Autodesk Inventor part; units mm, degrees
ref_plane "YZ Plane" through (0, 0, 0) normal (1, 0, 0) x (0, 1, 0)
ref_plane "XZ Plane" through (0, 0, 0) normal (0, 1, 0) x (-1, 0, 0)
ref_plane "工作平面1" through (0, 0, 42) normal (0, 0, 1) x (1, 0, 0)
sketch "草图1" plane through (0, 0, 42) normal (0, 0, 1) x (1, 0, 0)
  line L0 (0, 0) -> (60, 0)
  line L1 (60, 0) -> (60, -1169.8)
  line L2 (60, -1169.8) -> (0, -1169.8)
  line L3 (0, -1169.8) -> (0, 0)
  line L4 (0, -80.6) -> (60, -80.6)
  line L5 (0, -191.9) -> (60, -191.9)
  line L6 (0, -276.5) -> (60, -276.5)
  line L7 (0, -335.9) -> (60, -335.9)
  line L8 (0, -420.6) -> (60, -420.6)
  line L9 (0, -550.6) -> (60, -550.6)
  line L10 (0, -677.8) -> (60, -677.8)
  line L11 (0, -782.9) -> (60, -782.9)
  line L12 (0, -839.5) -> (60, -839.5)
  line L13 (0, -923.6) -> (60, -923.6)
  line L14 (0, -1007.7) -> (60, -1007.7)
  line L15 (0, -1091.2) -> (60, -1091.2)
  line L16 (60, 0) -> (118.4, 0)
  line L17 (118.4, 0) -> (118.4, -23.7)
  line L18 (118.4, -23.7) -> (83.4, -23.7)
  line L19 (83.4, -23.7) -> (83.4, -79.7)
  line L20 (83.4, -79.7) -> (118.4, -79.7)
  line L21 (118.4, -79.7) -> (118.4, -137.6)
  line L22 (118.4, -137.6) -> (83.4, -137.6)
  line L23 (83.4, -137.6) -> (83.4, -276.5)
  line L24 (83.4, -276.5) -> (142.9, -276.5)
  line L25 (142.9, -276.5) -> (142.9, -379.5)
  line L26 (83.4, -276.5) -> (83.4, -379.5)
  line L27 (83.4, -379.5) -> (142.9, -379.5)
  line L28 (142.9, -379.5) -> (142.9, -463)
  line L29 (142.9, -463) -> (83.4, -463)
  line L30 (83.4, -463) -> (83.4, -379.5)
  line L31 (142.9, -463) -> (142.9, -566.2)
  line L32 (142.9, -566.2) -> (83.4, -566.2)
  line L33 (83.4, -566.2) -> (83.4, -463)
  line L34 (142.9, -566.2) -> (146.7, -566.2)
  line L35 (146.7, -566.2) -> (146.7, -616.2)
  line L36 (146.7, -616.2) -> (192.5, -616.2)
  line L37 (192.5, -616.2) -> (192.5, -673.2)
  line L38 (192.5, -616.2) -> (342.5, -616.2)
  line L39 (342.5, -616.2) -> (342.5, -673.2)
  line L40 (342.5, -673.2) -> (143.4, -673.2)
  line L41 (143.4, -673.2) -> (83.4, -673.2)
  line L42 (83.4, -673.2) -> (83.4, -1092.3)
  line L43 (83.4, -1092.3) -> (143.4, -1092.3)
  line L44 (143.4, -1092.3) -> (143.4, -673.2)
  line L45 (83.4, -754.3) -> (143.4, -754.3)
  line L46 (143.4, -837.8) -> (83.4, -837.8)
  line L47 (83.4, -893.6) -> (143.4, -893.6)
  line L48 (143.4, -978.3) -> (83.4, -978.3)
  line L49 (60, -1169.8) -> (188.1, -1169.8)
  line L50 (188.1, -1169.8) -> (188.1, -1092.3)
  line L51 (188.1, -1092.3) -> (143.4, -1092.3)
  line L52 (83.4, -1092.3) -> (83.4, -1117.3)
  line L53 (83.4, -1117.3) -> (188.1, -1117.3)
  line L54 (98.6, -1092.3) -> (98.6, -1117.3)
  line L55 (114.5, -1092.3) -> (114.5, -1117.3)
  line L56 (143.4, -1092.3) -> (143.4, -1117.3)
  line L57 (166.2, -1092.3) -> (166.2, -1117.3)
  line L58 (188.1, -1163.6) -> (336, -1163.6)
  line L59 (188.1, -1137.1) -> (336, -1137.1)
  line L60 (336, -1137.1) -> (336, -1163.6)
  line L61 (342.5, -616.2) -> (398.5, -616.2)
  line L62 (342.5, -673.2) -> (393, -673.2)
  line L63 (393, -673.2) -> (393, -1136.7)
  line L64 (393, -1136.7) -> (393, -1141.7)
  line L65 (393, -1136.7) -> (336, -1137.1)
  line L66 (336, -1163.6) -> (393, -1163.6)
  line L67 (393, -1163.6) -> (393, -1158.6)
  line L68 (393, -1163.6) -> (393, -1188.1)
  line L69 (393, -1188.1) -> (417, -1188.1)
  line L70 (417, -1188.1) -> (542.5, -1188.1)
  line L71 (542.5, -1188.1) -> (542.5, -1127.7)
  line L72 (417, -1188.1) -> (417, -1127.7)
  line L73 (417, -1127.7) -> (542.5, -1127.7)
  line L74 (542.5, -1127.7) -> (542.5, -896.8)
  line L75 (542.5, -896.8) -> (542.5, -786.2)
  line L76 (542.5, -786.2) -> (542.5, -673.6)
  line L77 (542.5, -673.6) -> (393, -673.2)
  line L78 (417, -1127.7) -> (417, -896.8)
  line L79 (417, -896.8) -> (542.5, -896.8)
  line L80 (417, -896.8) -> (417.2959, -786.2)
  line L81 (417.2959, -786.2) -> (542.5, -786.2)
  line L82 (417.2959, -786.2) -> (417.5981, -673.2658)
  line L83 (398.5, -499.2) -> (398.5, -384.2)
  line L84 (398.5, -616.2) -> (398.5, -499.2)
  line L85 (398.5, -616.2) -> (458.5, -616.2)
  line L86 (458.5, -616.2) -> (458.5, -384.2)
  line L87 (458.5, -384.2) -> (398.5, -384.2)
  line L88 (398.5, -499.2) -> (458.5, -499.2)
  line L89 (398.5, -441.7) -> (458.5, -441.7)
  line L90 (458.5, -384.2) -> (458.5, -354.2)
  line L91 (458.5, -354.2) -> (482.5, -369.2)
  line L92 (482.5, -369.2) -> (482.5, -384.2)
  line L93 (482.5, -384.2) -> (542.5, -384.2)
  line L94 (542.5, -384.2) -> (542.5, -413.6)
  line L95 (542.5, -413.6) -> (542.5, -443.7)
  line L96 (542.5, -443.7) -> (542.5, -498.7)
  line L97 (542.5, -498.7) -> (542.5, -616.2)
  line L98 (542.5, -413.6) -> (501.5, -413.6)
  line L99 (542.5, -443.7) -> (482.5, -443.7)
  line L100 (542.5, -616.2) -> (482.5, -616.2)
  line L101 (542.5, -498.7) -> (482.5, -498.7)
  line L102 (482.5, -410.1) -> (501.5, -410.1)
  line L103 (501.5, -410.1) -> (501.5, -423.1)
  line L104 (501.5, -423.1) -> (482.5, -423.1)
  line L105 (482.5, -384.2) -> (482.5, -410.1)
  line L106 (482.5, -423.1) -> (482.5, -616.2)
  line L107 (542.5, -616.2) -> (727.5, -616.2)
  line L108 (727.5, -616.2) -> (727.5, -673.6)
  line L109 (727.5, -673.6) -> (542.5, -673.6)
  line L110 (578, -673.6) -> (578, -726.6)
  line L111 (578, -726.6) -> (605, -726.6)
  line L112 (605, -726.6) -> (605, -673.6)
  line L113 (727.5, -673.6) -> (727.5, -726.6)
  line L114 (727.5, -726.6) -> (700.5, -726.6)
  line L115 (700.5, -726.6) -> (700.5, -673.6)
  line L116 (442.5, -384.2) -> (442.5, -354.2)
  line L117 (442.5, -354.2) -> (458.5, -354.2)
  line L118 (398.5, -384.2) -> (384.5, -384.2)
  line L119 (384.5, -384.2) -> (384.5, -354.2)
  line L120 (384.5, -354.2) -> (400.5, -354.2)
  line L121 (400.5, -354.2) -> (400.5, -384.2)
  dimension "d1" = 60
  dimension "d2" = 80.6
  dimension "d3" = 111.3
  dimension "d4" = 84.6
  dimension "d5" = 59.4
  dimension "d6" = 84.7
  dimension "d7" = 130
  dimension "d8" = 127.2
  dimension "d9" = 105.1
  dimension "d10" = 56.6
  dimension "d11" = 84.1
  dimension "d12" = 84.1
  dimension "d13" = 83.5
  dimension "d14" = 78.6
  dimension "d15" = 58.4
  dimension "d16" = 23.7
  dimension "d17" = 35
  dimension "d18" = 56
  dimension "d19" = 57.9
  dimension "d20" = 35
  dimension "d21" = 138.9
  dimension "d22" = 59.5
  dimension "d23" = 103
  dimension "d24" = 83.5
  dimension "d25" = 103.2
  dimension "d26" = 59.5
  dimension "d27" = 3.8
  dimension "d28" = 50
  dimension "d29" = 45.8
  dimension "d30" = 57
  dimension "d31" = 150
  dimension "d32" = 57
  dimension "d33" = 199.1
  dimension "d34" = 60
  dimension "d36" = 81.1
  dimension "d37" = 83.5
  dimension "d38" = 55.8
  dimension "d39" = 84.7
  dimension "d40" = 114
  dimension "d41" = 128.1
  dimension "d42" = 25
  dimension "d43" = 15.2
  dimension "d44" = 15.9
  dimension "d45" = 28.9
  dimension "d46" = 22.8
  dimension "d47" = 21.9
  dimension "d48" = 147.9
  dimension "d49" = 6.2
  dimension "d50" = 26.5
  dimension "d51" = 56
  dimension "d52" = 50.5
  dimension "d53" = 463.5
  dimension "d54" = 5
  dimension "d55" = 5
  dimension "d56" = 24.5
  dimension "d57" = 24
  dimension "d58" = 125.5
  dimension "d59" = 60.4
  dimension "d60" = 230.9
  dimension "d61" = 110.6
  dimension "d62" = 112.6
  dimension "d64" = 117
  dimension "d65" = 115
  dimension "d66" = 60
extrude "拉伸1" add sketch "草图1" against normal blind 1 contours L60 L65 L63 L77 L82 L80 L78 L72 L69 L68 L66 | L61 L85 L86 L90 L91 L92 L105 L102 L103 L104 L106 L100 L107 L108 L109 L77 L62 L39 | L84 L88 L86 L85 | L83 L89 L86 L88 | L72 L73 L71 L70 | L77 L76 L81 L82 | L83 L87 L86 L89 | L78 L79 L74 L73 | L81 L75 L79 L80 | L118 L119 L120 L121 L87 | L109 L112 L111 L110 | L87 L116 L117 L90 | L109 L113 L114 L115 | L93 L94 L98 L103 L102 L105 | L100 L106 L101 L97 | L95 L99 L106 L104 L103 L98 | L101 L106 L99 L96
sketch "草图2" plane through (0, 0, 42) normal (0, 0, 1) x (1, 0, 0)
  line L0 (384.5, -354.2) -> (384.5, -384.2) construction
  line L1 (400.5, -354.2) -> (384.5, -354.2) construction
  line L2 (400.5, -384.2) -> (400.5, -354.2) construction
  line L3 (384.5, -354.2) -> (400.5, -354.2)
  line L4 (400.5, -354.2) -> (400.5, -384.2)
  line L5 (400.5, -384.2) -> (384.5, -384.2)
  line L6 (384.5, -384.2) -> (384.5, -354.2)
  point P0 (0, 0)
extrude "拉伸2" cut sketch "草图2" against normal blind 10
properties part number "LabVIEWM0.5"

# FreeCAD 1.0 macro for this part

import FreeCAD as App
import Part
import Sketcher

V = App.Vector


def add_polygon(sketch, points):
    """Adds a closed chain of lines whose ends are joined by coincident constraints."""
    first, n = sketch.GeometryCount, len(points)
    for a, b in zip(points, points[1:] + points[:1]):
        sketch.addGeometry(Part.LineSegment(App.Vector(*a, 0), App.Vector(*b, 0)), False)
    for i in range(n):
        sketch.addConstraint(Sketcher.Constraint("Coincident", first + i, 2, first + (i + 1) % n, 1))

doc = App.newDocument("Part")
body = doc.addObject("PartDesign::Body", "Body")

# Sketch on XY plane
sketch1 = body.newObject("Sketcher::SketchObject", "Sketch")
sketch1.AttachmentSupport = (doc.getObject("XY_Plane"), [""])
sketch1.MapMode = "FlatFace"
sketch1.AttachmentOffset = App.Placement(V(0, 0, 42), App.Rotation())
add_polygon(sketch1, [(336, -1137), (336, -1164), (393, -1164), (393, -1188), (542, -1188), (542, -674), (578, -674), (578, -727), (605, -727), (605, -674), (700, -674), (700, -727), (728, -727), (728, -616), (542, -616), (542, -384), (482, -384), (482, -369), (458, -354), (442, -354), (442, -384), (400, -384), (400, -354), (384, -354), (384, -384), (398, -384), (398, -616), (342, -616), (342, -673), (393, -673), (393, -1137)])  # lines 0-30
sketch1.addConstraint(Sketcher.Constraint("Vertical", 0))
sketch1.addConstraint(Sketcher.Constraint("Horizontal", 1))
sketch1.addConstraint(Sketcher.Constraint("Vertical", 2))
sketch1.addConstraint(Sketcher.Constraint("Horizontal", 3))
sketch1.addConstraint(Sketcher.Constraint("Vertical", 4))
sketch1.addConstraint(Sketcher.Constraint("Horizontal", 5))
sketch1.addConstraint(Sketcher.Constraint("Vertical", 6))
sketch1.addConstraint(Sketcher.Constraint("Horizontal", 7))
sketch1.addConstraint(Sketcher.Constraint("Vertical", 8))
sketch1.addConstraint(Sketcher.Constraint("Horizontal", 9))
sketch1.addConstraint(Sketcher.Constraint("Vertical", 10))
sketch1.addConstraint(Sketcher.Constraint("Horizontal", 11))
sketch1.addConstraint(Sketcher.Constraint("Vertical", 12))
sketch1.addConstraint(Sketcher.Constraint("Horizontal", 13))
sketch1.addConstraint(Sketcher.Constraint("Vertical", 14))
sketch1.addConstraint(Sketcher.Constraint("Horizontal", 15))
sketch1.addConstraint(Sketcher.Constraint("Vertical", 16))
sketch1.addConstraint(Sketcher.Constraint("Horizontal", 18))
sketch1.addConstraint(Sketcher.Constraint("Vertical", 19))
sketch1.addConstraint(Sketcher.Constraint("Horizontal", 20))
sketch1.addConstraint(Sketcher.Constraint("Vertical", 21))
sketch1.addConstraint(Sketcher.Constraint("Horizontal", 22))
sketch1.addConstraint(Sketcher.Constraint("Vertical", 23))
sketch1.addConstraint(Sketcher.Constraint("Horizontal", 24))
sketch1.addConstraint(Sketcher.Constraint("Vertical", 25))
sketch1.addConstraint(Sketcher.Constraint("Horizontal", 26))
sketch1.addConstraint(Sketcher.Constraint("Vertical", 27))
sketch1.addConstraint(Sketcher.Constraint("Horizontal", 28))
sketch1.addConstraint(Sketcher.Constraint("Vertical", 29))
sketch1.addConstraint(Sketcher.Constraint("Horizontal", 5, 2, 8, 2))
sketch1.addConstraint(Sketcher.Constraint("Horizontal", 7, 2, 10, 2))
sketch1.addConstraint(Sketcher.Constraint("Horizontal", 15, 2, 19, 2))
sketch1.addConstraint(Sketcher.Constraint("Horizontal", 18, 2, 21, 2))
sketch1.addConstraint(Sketcher.Constraint("Horizontal", 20, 2, 23, 2))
sketch1.addConstraint(Sketcher.Constraint("Horizontal", 13, 2, 25, 2))
sketch1.addConstraint(Sketcher.Constraint("Vertical", 4, 2, 13, 2))
sketch1.addConstraint(Sketcher.Constraint("Vertical", 2, 2, 28, 2))
sketch1.addConstraint(Sketcher.Constraint("Equal", 7, 11))
sketch1.addConstraint(Sketcher.Constraint("Equal", 18, 22))
sketch1.addConstraint(Sketcher.Constraint("Equal", 1, 27))
sketch1.addConstraint(Sketcher.Constraint("DistanceX", 1, 1, 1, 2, 57.0))
sketch1.addConstraint(Sketcher.Constraint("DistanceX", 15, 2, 15, 1, 60.0))
sketch1.addConstraint(Sketcher.Constraint("DistanceX", 26, 2, 26, 1, 56.0))
sketch1.addConstraint(Sketcher.Constraint("DistanceX", 28, 1, 28, 2, 50.5))
sketch1.addConstraint(Sketcher.Constraint("DistanceY", 0, 2, 0, 1, 26.5))
sketch1.addConstraint(Sketcher.Constraint("DistanceY", 2, 2, 2, 1, 24.5))
sketch1.addConstraint(Sketcher.Constraint("DistanceY", 29, 2, 29, 1, 463.5))
sketch1.addConstraint(Sketcher.Constraint("DistanceX", 17, 2, 16, 2, 24.0))
sketch1.addConstraint(Sketcher.Constraint("DistanceX", 7, 1, 7, 2, 27.0))
sketch1.addConstraint(Sketcher.Constraint("DistanceX", 13, 2, 13, 1, 185.0))
sketch1.addConstraint(Sketcher.Constraint("DistanceX", 18, 2, 18, 1, 16.0))
sketch1.addConstraint(Sketcher.Constraint("DistanceX", 20, 2, 20, 1, 42.0))
sketch1.addConstraint(Sketcher.Constraint("DistanceX", 24, 1, 24, 2, 14.0))
sketch1.addConstraint(Sketcher.Constraint("DistanceY", 6, 2, 6, 1, 53.0))
sketch1.addConstraint(Sketcher.Constraint("DistanceY", 14, 1, 14, 2, 232.0))
sketch1.addConstraint(Sketcher.Constraint("DistanceY", 16, 1, 16, 2, 15.0))
sketch1.addConstraint(Sketcher.Constraint("DistanceY", 19, 2, 19, 1, 30.0))
sketch1.addConstraint(Sketcher.Constraint("DistanceX", 5, 1, 5, 2, 35.5))
sketch1.addConstraint(Sketcher.Constraint("DistanceY", 4, 1, 4, 2, 514.5))
sketch1.addConstraint(Sketcher.Constraint("DistanceY", 12, 1, 12, 2, 110.4))
sketch1.addConstraint(Sketcher.Constraint("DistanceX", -1, 1, 0, 2, 336.0))
sketch1.addConstraint(Sketcher.Constraint("DistanceY", 0, 2, -1, 1, 1163.6))
pad1 = body.newObject("PartDesign::Pad", "Pad")
pad1.Profile = sketch1
pad1.Length = 1
pad1.Reversed = True

# Sketch on XY plane
sketch2 = body.newObject("Sketcher::SketchObject", "Sketch001")
sketch2.AttachmentSupport = (doc.getObject("XY_Plane"), [""])
sketch2.MapMode = "FlatFace"
sketch2.AttachmentOffset = App.Placement(V(0, 0, 42), App.Rotation())
add_polygon(sketch2, [(400, -354), (384, -354), (384, -384), (400, -384)])  # lines 0-3
sketch2.addConstraint(Sketcher.Constraint("Horizontal", 0))
sketch2.addConstraint(Sketcher.Constraint("Vertical", 1))
sketch2.addConstraint(Sketcher.Constraint("Horizontal", 2))
sketch2.addConstraint(Sketcher.Constraint("Vertical", 3))
sketch2.addConstraint(Sketcher.Constraint("DistanceX", 0, 2, 0, 1, 16.0))
sketch2.addConstraint(Sketcher.Constraint("DistanceY", 1, 2, 1, 1, 30.0))
sketch2.addConstraint(Sketcher.Constraint("DistanceX", -1, 1, 0, 2, 384.5))
sketch2.addConstraint(Sketcher.Constraint("DistanceY", 0, 2, -1, 1, 354.2))
pocket1 = body.newObject("PartDesign::Pocket", "Pocket")
pocket1.Profile = sketch2
pocket1.Length = 10

doc.recompute()
